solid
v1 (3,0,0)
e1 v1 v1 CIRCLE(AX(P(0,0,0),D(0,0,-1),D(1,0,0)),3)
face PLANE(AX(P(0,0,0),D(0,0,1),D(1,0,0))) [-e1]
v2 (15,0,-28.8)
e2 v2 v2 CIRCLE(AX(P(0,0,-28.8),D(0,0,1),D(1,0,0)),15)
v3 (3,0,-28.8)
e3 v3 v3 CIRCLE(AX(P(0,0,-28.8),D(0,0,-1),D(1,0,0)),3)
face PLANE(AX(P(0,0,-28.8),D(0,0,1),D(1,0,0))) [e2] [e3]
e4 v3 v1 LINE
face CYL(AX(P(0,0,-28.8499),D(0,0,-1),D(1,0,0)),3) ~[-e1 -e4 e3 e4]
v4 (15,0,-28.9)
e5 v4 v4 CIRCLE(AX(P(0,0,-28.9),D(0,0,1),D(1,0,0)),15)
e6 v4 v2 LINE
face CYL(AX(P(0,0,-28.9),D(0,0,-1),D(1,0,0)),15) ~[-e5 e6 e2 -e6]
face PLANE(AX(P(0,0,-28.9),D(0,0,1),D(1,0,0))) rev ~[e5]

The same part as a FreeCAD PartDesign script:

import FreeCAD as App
import Part
import Sketcher

V = App.Vector

doc = App.newDocument("Part")
params = doc.addObject("Spreadsheet::Sheet", "Params")
for row, (alias, value) in enumerate([
    ("sketch1_diameter", "30 mm"),
    ("pad1_length", "10 mm"),
    ("sketch2_diameter", "6 mm"),
    ("pad2_length", "37.95 mm"),
    ("sketch3_diameter", "30 mm"),
    ("pad3_length", "0.1 mm"),
], start=1):
    params.set(f"A{row}", alias)
    params.set(f"B{row}", "=" + value)
    params.setAlias(f"B{row}", alias)

body = doc.addObject("PartDesign::Body", "Body")

# Sketch on XY plane
sketch1 = body.newObject("Sketcher::SketchObject", "Sketch")
sketch1.AttachmentSupport = (doc.getObject("XY_Plane"), [""])
sketch1.MapMode = "FlatFace"
sketch1.addGeometry(Part.Circle(V(0, 0, 0), V(0, 0, 1), 15), False)
sketch1.addConstraint(Sketcher.Constraint("Coincident", 0, 3, -1, 1))
sketch1.addConstraint(Sketcher.Constraint("Diameter", 0, 30.0))
sketch1.setExpression("Constraints[1]", "Params.sketch1_diameter")
pad1 = body.newObject("PartDesign::Pad", "Pad")
pad1.Profile = sketch1
pad1.setExpression("Length", "Params.pad1_length")
body2 = doc.addObject("PartDesign::Body", "Body001")

# Sketch on XY plane
sketch2 = body2.newObject("Sketcher::SketchObject", "Sketch001")
sketch2.AttachmentSupport = (doc.getObject("XY_Plane001"), [""])
sketch2.MapMode = "FlatFace"
sketch2.AttachmentOffset = App.Placement(V(0, 0, -28.8499), App.Rotation())
sketch2.addGeometry(Part.Circle(V(0, 0, 0), V(0, 0, 1), 3), False)
sketch2.addConstraint(Sketcher.Constraint("Coincident", 0, 3, -1, 1))
sketch2.addConstraint(Sketcher.Constraint("Diameter", 0, 6.0))
sketch2.setExpression("Constraints[1]", "Params.sketch2_diameter")
pad2 = body2.newObject("PartDesign::Pad", "Pad001")
pad2.Profile = sketch2
pad2.setExpression("Length", "Params.pad2_length")
body3 = doc.addObject("PartDesign::Body", "Body002")

# Sketch on XY plane
sketch3 = body3.newObject("Sketcher::SketchObject", "Sketch002")
sketch3.AttachmentSupport = (doc.getObject("XY_Plane002"), [""])
sketch3.MapMode = "FlatFace"
sketch3.AttachmentOffset = App.Placement(V(0, 0, -28.9), App.Rotation())
sketch3.addGeometry(Part.Circle(V(0, 0, 0), V(0, 0, 1), 15), False)
sketch3.addConstraint(Sketcher.Constraint("Coincident", 0, 3, -1, 1))
sketch3.addConstraint(Sketcher.Constraint("Diameter", 0, 30.0))
sketch3.setExpression("Constraints[1]", "Params.sketch3_diameter")
pad3 = body3.newObject("PartDesign::Pad", "Pad002")
pad3.Profile = sketch3
pad3.setExpression("Length", "Params.pad3_length")
doc.recompute()

boolean = body3.newObject("PartDesign::Boolean", "Boolean")
boolean.Type = "Fuse"
boolean.addObjects([body2])
doc.recompute()

boolean2 = body3.newObject("PartDesign::Boolean", "Boolean001")
boolean2.Type = "Cut"
boolean2.addObjects([body])

doc.recompute()
